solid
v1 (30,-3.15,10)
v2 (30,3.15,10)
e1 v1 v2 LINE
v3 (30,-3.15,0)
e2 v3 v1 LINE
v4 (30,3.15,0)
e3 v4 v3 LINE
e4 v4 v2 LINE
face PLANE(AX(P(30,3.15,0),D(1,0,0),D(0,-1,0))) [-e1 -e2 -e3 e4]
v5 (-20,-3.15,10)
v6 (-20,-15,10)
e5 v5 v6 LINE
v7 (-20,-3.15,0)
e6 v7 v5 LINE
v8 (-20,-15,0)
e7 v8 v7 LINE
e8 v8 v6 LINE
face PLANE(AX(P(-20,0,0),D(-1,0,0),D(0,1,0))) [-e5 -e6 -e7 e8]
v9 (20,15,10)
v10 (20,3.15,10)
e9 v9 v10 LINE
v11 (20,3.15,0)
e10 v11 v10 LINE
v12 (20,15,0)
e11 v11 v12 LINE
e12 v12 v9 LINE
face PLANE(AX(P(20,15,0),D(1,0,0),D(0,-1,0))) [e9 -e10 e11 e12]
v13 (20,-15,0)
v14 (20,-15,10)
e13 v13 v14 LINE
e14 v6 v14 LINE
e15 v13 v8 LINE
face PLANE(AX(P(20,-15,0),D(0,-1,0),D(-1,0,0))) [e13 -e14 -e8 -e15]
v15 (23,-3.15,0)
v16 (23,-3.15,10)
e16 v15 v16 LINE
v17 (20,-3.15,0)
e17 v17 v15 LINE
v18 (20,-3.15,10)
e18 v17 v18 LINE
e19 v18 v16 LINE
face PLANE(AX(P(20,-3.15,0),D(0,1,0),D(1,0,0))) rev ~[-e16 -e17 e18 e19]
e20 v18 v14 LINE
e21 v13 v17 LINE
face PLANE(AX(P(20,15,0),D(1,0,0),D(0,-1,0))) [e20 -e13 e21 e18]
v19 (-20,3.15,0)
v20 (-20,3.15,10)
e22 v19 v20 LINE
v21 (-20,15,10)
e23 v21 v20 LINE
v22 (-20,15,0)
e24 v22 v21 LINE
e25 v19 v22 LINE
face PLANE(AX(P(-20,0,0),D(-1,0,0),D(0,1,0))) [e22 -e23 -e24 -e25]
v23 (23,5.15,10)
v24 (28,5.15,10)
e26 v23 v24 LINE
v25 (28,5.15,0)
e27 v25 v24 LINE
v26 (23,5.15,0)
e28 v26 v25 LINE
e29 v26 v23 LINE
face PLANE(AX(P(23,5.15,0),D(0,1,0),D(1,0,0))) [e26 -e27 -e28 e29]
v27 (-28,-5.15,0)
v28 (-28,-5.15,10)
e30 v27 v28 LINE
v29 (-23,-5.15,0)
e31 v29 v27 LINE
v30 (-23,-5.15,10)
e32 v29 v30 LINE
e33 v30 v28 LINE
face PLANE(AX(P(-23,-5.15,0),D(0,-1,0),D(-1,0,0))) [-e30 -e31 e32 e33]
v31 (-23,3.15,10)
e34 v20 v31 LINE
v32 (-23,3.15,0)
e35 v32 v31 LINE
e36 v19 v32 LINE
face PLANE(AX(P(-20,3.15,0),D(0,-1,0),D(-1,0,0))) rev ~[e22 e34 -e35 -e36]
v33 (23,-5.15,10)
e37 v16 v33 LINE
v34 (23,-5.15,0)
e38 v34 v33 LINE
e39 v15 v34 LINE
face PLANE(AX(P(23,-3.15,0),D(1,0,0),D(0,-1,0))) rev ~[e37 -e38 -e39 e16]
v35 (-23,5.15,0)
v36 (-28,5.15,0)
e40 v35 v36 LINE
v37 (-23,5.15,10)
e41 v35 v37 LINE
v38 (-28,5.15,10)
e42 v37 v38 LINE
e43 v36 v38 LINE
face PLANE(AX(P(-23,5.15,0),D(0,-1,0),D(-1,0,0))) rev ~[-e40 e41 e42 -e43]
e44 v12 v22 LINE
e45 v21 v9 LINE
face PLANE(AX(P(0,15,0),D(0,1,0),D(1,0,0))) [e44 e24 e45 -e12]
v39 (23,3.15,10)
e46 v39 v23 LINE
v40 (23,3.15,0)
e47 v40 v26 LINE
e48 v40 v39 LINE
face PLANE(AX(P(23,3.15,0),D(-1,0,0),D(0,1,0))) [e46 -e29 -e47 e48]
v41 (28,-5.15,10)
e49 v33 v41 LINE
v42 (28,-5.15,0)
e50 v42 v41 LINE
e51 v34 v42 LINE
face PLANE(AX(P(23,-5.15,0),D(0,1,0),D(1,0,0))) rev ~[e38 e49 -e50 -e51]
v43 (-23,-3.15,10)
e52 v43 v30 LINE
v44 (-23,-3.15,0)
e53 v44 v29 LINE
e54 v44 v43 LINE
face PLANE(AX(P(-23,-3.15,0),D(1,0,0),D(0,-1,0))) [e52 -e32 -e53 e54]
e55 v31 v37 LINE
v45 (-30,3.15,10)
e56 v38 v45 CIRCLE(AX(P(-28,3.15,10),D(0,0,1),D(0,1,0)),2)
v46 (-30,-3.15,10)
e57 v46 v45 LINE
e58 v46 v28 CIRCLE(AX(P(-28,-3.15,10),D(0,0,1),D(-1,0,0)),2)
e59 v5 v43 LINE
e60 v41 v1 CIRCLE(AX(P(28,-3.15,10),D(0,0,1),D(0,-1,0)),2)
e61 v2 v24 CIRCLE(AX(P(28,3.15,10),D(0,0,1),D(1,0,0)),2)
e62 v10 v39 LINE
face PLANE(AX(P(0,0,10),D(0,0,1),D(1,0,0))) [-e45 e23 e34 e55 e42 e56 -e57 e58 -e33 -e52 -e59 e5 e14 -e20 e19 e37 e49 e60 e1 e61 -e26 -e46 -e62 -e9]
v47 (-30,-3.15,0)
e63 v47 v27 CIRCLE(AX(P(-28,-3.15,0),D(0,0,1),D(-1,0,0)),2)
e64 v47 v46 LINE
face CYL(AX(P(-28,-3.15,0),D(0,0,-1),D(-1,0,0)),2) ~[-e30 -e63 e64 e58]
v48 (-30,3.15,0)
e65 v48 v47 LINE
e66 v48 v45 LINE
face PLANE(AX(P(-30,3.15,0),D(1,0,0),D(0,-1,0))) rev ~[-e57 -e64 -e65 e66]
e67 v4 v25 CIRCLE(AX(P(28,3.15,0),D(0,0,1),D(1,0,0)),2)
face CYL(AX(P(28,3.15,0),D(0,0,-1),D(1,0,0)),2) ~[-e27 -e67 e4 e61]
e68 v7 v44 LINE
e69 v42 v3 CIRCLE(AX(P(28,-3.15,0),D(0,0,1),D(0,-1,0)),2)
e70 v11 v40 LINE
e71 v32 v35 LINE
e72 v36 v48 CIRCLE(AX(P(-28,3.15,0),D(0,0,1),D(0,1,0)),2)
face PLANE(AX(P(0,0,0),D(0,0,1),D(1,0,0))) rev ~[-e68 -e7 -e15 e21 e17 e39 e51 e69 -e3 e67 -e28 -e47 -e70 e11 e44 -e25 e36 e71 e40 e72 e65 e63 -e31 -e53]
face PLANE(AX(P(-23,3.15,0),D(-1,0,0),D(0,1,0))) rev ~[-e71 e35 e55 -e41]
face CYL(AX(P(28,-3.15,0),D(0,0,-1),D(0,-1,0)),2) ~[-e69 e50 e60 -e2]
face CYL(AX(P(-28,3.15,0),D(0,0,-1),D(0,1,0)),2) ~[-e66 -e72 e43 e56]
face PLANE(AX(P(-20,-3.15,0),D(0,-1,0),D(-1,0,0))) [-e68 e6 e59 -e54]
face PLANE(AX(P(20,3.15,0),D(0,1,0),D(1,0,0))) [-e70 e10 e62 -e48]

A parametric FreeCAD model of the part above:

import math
import FreeCAD as App
import Part
import Sketcher

doc = App.newDocument("Part")
body = doc.addObject("PartDesign::Body", "Body")

sketch1 = body.newObject("Sketcher::SketchObject", "Sketch")
sketch1.AttachmentSupport = (doc.getObject("XY_Plane"), [""])
sketch1.MapMode = "FlatFace"
sketch1.addGeometry([
    Part.LineSegment(App.Vector(20, 15, 0), App.Vector(-20, 15, 0)),
    Part.LineSegment(App.Vector(-20, 15, 0), App.Vector(-20, -15, 0)),
    Part.LineSegment(App.Vector(-20, -15, 0), App.Vector(20, -15, 0)),
    Part.LineSegment(App.Vector(20, -15, 0), App.Vector(20, 15, 0)),
], False)
sketch1.addConstraint([
    Sketcher.Constraint("Coincident", 0, 2, 1, 1),
    Sketcher.Constraint("Coincident", 1, 2, 2, 1),
    Sketcher.Constraint("Coincident", 2, 2, 3, 1),
    Sketcher.Constraint("Coincident", 3, 2, 0, 1),
    Sketcher.Constraint("Horizontal", 0),
    Sketcher.Constraint("Vertical", 1),
    Sketcher.Constraint("Horizontal", 2),
    Sketcher.Constraint("Vertical", 3),
    Sketcher.Constraint("Symmetric", 0, 2, 2, 2, -1, 1),
    Sketcher.Constraint("DistanceX", 0, 2, 0, 1, 40.0),
    Sketcher.Constraint("DistanceY", 1, 2, 1, 1, 30.0),
])
pad1 = body.newObject("PartDesign::Pad", "Pad")
pad1.Profile = sketch1
pad1.Length = 10

sketch2 = body.newObject("Sketcher::SketchObject", "Sketch001")
sketch2.AttachmentSupport = (doc.getObject("XY_Plane"), [""])
sketch2.MapMode = "FlatFace"
sketch2.addGeometry([
    Part.LineSegment(App.Vector(-30, 3.1, 0), App.Vector(-30, -3.1, 0)),
    Part.ArcOfCircle(Part.Circle(App.Vector(-28, -3.1, 0), App.Vector(0, 0, 1), 2), math.radians(180), math.radians(270)),
    Part.LineSegment(App.Vector(-28, -5.2, 0), App.Vector(-23, -5.2, 0)),
    Part.LineSegment(App.Vector(-23, -5.2, 0), App.Vector(-23, -3.1, 0)),
    Part.LineSegment(App.Vector(-23, -3.1, 0), App.Vector(-20, -3.1, 0)),
    Part.LineSegment(App.Vector(-20, -3.1, 0), App.Vector(-20, 3.1, 0)),
    Part.LineSegment(App.Vector(-20, 3.1, 0), App.Vector(-23, 3.1, 0)),
    Part.LineSegment(App.Vector(-23, 3.1, 0), App.Vector(-23, 5.2, 0)),
    Part.LineSegment(App.Vector(-23, 5.2, 0), App.Vector(-28, 5.2, 0)),
    Part.ArcOfCircle(Part.Circle(App.Vector(-28, 3.1, 0), App.Vector(0, 0, 1), 2), math.radians(90), math.radians(180)),
    Part.LineSegment(App.Vector(20, 3.1, 0), App.Vector(20, -3.1, 0)),
    Part.LineSegment(App.Vector(20, -3.1, 0), App.Vector(23, -3.1, 0)),
    Part.LineSegment(App.Vector(23, -3.1, 0), App.Vector(23, -5.2, 0)),
    Part.LineSegment(App.Vector(23, -5.2, 0), App.Vector(28, -5.2, 0)),
    Part.ArcOfCircle(Part.Circle(App.Vector(28, -3.1, 0), App.Vector(0, 0, 1), 2), math.radians(-90), math.radians(0)),
    Part.LineSegment(App.Vector(30, -3.1, 0), App.Vector(30, 3.1, 0)),
    Part.ArcOfCircle(Part.Circle(App.Vector(28, 3.1, 0), App.Vector(0, 0, 1), 2), math.radians(0), math.radians(90)),
    Part.LineSegment(App.Vector(28, 5.2, 0), App.Vector(23, 5.2, 0)),
    Part.LineSegment(App.Vector(23, 5.2, 0), App.Vector(23, 3.1, 0)),
    Part.LineSegment(App.Vector(23, 3.1, 0), App.Vector(20, 3.1, 0)),
], False)
sketch2.addConstraint([
    Sketcher.Constraint("Tangent", 0, 2, 1, 1),
    Sketcher.Constraint("Tangent", 1, 2, 2, 1),
    Sketcher.Constraint("Coincident", 2, 2, 3, 1),
    Sketcher.Constraint("Coincident", 3, 2, 4, 1),
    Sketcher.Constraint("Coincident", 4, 2, 5, 1),
    Sketcher.Constraint("Coincident", 5, 2, 6, 1),
    Sketcher.Constraint("Coincident", 6, 2, 7, 1),
    Sketcher.Constraint("Coincident", 7, 2, 8, 1),
    Sketcher.Constraint("Tangent", 8, 2, 9, 1),
    Sketcher.Constraint("Tangent", 9, 2, 0, 1),
    Sketcher.Constraint("Coincident", 10, 2, 11, 1),
    Sketcher.Constraint("Coincident", 11, 2, 12, 1),
    Sketcher.Constraint("Coincident", 12, 2, 13, 1),
    Sketcher.Constraint("Tangent", 13, 2, 14, 1),
    Sketcher.Constraint("Tangent", 14, 2, 15, 1),
    Sketcher.Constraint("Tangent", 15, 2, 16, 1),
    Sketcher.Constraint("Tangent", 16, 2, 17, 1),
    Sketcher.Constraint("Coincident", 17, 2, 18, 1),
    Sketcher.Constraint("Coincident", 18, 2, 19, 1),
    Sketcher.Constraint("Coincident", 19, 2, 10, 1),
    Sketcher.Constraint("Vertical", 0),
    Sketcher.Constraint("Horizontal", 2),
    Sketcher.Constraint("Vertical", 3),
    Sketcher.Constraint("Horizontal", 4),
    Sketcher.Constraint("Vertical", 5),
    Sketcher.Constraint("Horizontal", 6),
    Sketcher.Constraint("Vertical", 7),
    Sketcher.Constraint("Horizontal", 8),
    Sketcher.Constraint("Vertical", 10),
    Sketcher.Constraint("Horizontal", 11),
    Sketcher.Constraint("Vertical", 12),
    Sketcher.Constraint("Horizontal", 13),
    Sketcher.Constraint("Vertical", 15),
    Sketcher.Constraint("Horizontal", 17),
    Sketcher.Constraint("Vertical", 18),
    Sketcher.Constraint("Horizontal", 19),
    Sketcher.Constraint("Equal", 1, 9),
    Sketcher.Constraint("Equal", 9, 14),
    Sketcher.Constraint("Equal", 14, 16),
    Sketcher.Constraint("Symmetric", 9, 3, 14, 3, -1, 1),
    Sketcher.Constraint("Symmetric", 5, 2, 10, 2, -1, 1),
    Sketcher.Constraint("Symmetric", 2, 2, 17, 2, -1, 1),
    Sketcher.Constraint("Symmetric", 3, 2, 11, 2, -2),
    Sketcher.Constraint("Symmetric", 7, 2, 17, 2, -2),
    Sketcher.Constraint("Horizontal", 0, 2, 3, 2),
    Sketcher.Constraint("Horizontal", 15, 2, 18, 2),
    Sketcher.Constraint("Radius", 1, 2.0),
    Sketcher.Constraint("DistanceX", 4, 1, 4, 2, 3.0),
    Sketcher.Constraint("DistanceX", 0, 2, 2, 2, 7.0),
    Sketcher.Constraint("DistanceY", 1, 2, -1, 1, 5.15),
    Sketcher.Constraint("DistanceX", 1, 3, -1, 1, 28.0),
])
pad2 = body.newObject("PartDesign::Pad", "Pad001")
pad2.Profile = sketch2
pad2.Length = 10

doc.recompute()
